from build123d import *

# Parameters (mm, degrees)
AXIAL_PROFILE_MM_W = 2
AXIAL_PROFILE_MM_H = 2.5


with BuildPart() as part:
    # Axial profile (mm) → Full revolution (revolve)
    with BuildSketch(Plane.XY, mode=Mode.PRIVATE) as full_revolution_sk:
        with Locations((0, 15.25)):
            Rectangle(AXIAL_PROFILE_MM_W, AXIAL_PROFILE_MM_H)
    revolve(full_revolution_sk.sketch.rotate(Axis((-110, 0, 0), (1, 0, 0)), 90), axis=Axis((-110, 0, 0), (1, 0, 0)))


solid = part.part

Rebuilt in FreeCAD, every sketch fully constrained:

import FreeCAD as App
import Part
import Sketcher
Q = App.Units.Quantity

doc = App.newDocument("Part")
body = doc.addObject("PartDesign::Body", "Body")

sketch1 = body.newObject("Sketcher::SketchObject", "Sketch")
sketch1.AttachmentSupport = (doc.getObject("XY_Plane"), [""])
sketch1.MapMode = "FlatFace"
sketch1.addGeometry([
    Part.LineSegment(App.Vector(-1, 16.5, 0), App.Vector(-1, 14, 0)),
    Part.LineSegment(App.Vector(-1, 14, 0), App.Vector(1, 14, 0)),
    Part.LineSegment(App.Vector(1, 14, 0), App.Vector(1, 16.5, 0)),
    Part.LineSegment(App.Vector(1, 16.5, 0), App.Vector(-1, 16.5, 0)),
], False)
sketch1.addConstraint([
    Sketcher.Constraint("Coincident", 0, 2, 1, 1),
    Sketcher.Constraint("Coincident", 1, 2, 2, 1),
    Sketcher.Constraint("Coincident", 2, 2, 3, 1),
    Sketcher.Constraint("Coincident", 3, 2, 0, 1),
    Sketcher.Constraint("Vertical", 0),
    Sketcher.Constraint("Horizontal", 1),
    Sketcher.Constraint("Vertical", 2),
    Sketcher.Constraint("Horizontal", 3),
    Sketcher.Constraint("DistanceX", 1, 1, 1, 2, Q("2 mm")),
    Sketcher.Constraint("DistanceY", 0, 2, 0, 1, Q("2.5 mm")),
    Sketcher.Constraint("DistanceX", 0, 2, -1, 1, Q("1 mm")),
    Sketcher.Constraint("DistanceY", -1, 1, 0, 2, Q("14 mm")),
])
revolution = body.newObject("PartDesign::Revolution", "Revolution")
revolution.Profile = sketch1
revolution.ReferenceAxis = (sketch1, ["H_Axis"])
revolution.Angle = 360

doc.recompute()
